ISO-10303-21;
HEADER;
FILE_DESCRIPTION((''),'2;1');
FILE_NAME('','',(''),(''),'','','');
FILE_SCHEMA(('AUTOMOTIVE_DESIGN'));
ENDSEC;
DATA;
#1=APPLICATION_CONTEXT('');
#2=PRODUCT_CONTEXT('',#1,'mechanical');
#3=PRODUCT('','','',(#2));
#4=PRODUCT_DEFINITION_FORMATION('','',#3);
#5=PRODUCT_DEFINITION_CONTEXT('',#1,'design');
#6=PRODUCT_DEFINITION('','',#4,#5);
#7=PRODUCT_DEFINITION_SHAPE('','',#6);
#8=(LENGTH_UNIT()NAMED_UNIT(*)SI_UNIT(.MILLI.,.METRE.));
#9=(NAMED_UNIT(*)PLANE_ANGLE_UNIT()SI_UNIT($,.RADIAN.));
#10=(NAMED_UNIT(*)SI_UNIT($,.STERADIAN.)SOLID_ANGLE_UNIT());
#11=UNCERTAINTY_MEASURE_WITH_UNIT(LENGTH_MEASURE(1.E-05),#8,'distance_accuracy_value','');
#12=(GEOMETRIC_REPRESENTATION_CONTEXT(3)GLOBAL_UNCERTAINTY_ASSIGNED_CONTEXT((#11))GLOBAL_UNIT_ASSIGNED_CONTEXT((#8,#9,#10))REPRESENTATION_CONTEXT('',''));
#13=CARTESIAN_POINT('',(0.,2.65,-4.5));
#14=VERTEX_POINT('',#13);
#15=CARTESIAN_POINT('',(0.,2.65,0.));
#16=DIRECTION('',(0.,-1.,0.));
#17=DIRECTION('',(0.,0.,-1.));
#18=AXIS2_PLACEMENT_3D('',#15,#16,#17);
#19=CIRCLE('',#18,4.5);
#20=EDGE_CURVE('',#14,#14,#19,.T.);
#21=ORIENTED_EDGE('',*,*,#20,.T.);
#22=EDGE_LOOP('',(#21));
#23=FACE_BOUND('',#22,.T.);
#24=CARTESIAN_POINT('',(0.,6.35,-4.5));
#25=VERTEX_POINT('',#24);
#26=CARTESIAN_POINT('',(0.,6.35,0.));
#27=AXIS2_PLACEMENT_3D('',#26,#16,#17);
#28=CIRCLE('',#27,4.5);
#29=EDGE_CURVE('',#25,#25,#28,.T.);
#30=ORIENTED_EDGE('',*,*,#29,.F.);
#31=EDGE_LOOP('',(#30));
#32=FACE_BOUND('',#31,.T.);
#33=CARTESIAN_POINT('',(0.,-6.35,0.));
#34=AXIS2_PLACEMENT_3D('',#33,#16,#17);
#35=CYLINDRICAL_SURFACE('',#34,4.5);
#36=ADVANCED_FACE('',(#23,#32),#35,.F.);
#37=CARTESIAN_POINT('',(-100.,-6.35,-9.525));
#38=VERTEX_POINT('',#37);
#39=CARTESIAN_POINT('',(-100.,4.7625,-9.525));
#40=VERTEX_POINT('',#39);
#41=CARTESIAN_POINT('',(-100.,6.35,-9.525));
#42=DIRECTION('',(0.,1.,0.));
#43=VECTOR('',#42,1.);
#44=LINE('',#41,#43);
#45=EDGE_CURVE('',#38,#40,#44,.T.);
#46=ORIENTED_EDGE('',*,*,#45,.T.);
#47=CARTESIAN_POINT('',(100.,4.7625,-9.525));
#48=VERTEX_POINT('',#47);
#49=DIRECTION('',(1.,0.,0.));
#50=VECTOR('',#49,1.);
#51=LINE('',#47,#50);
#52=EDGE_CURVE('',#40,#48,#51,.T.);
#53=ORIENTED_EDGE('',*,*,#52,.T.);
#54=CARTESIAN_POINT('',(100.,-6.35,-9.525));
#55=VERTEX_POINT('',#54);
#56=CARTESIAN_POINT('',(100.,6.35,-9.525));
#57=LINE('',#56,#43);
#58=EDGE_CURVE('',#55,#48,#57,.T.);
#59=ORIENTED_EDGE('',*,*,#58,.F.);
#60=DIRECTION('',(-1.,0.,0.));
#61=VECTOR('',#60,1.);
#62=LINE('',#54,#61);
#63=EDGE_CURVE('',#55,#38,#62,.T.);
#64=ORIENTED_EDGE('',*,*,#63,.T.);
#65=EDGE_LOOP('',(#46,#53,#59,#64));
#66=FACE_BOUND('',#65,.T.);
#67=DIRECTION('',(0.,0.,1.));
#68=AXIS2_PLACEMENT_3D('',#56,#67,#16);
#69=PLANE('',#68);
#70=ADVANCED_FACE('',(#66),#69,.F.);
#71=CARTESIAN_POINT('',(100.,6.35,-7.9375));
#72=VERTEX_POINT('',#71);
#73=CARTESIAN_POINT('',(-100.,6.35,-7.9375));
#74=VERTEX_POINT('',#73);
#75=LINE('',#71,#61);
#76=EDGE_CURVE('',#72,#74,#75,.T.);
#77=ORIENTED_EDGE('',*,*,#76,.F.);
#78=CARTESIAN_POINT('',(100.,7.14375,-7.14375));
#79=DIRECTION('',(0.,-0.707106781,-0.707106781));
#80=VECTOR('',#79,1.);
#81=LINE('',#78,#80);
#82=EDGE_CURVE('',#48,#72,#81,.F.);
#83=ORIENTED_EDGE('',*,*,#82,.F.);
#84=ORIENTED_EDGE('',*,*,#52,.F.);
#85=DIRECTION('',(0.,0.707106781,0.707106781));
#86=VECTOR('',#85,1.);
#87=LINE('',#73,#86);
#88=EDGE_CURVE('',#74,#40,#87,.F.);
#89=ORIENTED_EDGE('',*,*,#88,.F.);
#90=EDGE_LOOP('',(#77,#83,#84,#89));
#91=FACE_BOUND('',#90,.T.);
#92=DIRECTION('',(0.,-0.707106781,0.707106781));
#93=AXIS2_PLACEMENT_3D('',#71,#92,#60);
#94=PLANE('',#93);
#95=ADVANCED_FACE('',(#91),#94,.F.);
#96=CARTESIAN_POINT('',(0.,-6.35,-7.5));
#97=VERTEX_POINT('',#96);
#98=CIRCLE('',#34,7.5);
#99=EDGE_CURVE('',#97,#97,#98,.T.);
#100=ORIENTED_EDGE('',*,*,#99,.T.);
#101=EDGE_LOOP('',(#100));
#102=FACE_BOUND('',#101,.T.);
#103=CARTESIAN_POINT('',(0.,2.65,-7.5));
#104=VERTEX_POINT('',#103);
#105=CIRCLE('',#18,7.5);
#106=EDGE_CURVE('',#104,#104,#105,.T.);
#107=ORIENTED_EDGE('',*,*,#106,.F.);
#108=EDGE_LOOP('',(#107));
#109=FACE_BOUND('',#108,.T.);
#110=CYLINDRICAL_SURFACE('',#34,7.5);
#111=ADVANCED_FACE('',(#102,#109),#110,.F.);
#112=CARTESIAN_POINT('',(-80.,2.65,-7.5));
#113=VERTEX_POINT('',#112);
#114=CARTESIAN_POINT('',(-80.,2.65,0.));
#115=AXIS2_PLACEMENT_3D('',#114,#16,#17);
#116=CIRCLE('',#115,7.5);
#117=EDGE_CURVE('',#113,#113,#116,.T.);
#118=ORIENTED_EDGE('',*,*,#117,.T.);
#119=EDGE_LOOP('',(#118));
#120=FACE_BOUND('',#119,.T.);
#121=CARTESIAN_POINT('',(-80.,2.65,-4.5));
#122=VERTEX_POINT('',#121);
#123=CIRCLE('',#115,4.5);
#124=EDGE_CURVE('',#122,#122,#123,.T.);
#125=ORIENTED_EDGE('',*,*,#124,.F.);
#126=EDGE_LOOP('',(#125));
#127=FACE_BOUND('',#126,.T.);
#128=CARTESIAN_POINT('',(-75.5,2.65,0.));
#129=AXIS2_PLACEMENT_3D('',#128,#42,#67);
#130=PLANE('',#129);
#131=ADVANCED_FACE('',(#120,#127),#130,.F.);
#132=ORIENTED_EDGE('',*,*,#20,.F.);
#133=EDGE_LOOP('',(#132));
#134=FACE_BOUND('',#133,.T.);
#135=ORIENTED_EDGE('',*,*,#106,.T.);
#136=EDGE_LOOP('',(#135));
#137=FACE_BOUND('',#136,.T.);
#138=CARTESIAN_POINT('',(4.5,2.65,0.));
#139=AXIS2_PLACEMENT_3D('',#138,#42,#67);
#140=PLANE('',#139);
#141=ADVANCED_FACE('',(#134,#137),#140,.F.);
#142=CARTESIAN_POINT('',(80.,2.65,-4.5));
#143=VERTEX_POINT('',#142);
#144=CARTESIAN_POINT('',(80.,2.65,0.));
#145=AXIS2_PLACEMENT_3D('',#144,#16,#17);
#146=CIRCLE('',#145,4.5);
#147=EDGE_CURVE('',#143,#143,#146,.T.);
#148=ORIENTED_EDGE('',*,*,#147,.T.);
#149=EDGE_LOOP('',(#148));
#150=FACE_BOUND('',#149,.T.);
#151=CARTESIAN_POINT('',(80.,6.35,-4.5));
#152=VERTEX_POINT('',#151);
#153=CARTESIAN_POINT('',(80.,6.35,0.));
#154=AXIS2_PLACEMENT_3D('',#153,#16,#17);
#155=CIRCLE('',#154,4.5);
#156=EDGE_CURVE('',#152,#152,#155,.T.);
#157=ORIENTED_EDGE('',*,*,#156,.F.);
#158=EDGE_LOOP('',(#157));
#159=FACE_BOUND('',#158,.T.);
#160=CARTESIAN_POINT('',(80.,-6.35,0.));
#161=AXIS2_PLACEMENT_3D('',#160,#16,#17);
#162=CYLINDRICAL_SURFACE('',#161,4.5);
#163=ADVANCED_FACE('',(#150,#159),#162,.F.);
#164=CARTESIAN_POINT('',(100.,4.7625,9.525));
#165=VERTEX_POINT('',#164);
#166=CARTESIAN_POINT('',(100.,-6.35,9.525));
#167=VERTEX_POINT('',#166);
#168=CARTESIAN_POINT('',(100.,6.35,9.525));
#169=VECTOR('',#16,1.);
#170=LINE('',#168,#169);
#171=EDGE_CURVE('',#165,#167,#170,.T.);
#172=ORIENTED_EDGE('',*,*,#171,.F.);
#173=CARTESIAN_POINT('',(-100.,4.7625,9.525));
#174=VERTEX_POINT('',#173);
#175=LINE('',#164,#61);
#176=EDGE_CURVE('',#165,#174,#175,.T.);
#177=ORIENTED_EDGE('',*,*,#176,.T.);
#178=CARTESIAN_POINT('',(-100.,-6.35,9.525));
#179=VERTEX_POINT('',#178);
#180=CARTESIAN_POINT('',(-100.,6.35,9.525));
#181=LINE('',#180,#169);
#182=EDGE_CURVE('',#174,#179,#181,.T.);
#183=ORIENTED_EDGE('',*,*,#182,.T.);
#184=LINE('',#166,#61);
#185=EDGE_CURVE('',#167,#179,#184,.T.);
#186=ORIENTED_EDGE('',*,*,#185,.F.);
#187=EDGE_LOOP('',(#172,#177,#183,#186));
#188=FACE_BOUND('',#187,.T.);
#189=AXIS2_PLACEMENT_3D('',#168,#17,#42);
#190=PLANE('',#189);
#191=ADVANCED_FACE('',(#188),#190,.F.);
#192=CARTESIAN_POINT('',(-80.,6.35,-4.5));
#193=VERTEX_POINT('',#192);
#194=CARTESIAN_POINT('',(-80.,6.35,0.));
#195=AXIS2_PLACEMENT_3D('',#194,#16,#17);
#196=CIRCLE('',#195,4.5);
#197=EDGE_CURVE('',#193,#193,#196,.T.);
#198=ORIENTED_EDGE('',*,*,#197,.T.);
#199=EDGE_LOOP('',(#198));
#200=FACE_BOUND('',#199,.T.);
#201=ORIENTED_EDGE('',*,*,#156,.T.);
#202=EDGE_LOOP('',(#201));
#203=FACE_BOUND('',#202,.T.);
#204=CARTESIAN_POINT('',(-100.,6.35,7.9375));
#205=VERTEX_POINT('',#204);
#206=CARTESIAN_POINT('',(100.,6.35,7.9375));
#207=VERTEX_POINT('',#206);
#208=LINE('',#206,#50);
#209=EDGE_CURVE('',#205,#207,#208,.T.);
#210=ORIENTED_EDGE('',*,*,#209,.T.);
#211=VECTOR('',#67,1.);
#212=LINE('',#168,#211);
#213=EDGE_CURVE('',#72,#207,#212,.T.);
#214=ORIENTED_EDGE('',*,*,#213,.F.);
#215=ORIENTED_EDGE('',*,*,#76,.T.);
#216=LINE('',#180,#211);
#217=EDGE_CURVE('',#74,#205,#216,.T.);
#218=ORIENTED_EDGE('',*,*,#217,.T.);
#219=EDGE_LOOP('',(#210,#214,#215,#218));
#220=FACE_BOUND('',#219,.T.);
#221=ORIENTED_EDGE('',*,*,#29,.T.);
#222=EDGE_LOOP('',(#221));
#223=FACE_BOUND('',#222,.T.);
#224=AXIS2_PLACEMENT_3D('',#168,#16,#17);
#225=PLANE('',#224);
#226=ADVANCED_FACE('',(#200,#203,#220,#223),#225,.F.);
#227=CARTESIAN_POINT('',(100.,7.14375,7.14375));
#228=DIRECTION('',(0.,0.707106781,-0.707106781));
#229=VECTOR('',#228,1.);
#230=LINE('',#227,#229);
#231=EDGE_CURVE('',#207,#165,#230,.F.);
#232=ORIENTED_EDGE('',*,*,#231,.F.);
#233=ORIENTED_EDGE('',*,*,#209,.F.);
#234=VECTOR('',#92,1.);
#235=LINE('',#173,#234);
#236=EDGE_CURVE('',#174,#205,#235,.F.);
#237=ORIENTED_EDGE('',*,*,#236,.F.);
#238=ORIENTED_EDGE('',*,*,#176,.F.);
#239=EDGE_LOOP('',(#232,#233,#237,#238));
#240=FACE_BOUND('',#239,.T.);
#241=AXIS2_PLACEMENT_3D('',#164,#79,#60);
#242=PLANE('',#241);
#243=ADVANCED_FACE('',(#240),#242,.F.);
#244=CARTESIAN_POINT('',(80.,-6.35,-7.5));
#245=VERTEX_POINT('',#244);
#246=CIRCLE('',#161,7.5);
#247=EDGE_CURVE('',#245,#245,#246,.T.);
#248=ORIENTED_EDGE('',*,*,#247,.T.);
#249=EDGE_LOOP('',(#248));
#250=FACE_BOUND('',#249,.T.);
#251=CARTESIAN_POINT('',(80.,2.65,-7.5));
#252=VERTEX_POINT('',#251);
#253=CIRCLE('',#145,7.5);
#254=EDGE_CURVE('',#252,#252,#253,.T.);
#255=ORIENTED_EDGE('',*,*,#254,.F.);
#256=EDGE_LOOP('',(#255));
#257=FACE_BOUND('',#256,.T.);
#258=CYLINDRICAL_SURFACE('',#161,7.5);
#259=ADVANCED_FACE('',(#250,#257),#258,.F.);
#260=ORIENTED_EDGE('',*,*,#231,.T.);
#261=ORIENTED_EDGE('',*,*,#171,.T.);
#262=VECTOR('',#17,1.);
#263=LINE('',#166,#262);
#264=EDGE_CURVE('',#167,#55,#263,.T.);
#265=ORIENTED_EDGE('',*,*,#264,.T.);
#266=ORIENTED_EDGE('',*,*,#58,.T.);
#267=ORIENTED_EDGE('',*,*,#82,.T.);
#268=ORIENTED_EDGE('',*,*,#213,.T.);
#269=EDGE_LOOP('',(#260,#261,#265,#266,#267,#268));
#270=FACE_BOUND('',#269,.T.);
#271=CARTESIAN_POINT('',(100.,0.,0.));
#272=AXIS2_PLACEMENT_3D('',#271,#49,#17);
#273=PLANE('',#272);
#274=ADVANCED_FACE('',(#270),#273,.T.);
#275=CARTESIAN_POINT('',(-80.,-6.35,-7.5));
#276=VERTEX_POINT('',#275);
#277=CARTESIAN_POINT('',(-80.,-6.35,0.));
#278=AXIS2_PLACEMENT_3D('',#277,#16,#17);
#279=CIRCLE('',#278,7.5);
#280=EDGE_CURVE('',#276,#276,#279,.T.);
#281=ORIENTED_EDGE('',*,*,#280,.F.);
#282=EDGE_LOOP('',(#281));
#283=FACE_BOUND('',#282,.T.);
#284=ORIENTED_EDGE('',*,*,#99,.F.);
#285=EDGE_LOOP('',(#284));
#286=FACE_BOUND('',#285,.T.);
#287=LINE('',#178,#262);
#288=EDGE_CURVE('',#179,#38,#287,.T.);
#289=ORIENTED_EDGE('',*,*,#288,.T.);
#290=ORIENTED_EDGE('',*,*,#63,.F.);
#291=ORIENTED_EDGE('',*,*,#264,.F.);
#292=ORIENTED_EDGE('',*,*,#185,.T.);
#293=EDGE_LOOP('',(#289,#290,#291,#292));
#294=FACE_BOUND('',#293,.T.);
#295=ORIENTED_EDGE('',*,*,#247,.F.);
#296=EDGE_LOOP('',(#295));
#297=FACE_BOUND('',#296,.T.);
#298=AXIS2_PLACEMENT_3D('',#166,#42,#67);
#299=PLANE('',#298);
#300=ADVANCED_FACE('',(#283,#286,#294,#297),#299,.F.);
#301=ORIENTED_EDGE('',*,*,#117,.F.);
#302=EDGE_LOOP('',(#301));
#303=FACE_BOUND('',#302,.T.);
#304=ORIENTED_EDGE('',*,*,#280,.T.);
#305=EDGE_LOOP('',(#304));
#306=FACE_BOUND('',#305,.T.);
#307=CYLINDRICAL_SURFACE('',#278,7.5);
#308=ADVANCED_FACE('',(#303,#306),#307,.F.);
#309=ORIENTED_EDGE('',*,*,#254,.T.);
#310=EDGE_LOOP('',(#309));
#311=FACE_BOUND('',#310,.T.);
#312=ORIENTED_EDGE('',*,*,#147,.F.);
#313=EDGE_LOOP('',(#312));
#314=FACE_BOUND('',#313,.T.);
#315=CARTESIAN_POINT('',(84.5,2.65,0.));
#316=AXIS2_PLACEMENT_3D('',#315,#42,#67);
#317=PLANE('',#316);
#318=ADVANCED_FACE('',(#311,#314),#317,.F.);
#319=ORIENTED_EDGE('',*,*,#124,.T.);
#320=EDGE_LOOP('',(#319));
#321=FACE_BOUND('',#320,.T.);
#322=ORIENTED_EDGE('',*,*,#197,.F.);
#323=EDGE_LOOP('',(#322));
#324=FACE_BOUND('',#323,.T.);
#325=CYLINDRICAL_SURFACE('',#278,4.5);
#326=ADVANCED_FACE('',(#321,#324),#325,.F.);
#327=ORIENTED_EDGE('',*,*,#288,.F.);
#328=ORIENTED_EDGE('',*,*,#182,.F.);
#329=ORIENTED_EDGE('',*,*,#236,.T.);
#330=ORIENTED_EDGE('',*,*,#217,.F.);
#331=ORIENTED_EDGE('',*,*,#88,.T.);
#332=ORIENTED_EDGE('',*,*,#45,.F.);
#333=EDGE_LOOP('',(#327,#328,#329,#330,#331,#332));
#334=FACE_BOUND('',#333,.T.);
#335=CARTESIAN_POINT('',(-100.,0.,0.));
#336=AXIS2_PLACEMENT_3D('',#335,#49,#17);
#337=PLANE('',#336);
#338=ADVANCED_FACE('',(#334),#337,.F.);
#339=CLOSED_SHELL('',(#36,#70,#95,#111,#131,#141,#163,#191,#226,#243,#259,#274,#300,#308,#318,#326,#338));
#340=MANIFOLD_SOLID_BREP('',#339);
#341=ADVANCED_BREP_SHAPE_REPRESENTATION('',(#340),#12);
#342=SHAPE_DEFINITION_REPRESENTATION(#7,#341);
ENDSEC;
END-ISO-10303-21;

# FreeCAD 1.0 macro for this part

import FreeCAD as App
import Part
import Sketcher
Q = App.Units.Quantity


def edges_at(feature, points):
    """Names of the edges that pass closest to the given points."""
    edges = feature.Shape.Edges
    near = lambda p: min(range(len(edges)), key=lambda i: edges[i].distToShape(Part.Vertex(*p))[0])
    return sorted({f"Edge{near(p) + 1}" for p in points})

doc = App.newDocument("Part")
body = doc.addObject("PartDesign::Body", "Body")

# Sketch on YZ plane
sketch1 = doc.addObject("Sketcher::SketchObject", "Sketch")
body.addObject(sketch1)
sketch1.AttachmentSupport = (doc.YZ_Plane, [""])
sketch1.MapMode = "FlatFace"
sketch1.addGeometry([
    Part.LineSegment(App.Vector(6, 10, 0), App.Vector(-6, 10, 0)),
    Part.LineSegment(App.Vector(-6, 10, 0), App.Vector(-6, -10, 0)),
    Part.LineSegment(App.Vector(-6, -10, 0), App.Vector(6, -10, 0)),
    Part.LineSegment(App.Vector(6, -10, 0), App.Vector(6, 10, 0)),
], False)
sketch1.addConstraint([
    Sketcher.Constraint("Coincident", 0, 2, 1, 1),
    Sketcher.Constraint("Coincident", 1, 2, 2, 1),
    Sketcher.Constraint("Coincident", 2, 2, 3, 1),
    Sketcher.Constraint("Coincident", 3, 2, 0, 1),
    Sketcher.Constraint("Horizontal", 0),
    Sketcher.Constraint("Vertical", 1),
    Sketcher.Constraint("Horizontal", 2),
    Sketcher.Constraint("Vertical", 3),
    Sketcher.Constraint("Symmetric", 0, 2, 2, 2, -1, 1),
    Sketcher.Constraint("DistanceX", 0, 2, 0, 1, Q("0.5 in")),
    Sketcher.Constraint("DistanceY", 1, 2, 1, 1, Q("0.75 in")),
])
pad1 = doc.addObject("PartDesign::Pad", "Pad")
body.addObject(pad1)
pad1.Profile = sketch1
pad1.Length = 200
pad1.Midplane = True

# Sketch on XZ plane
sketch2 = doc.addObject("Sketcher::SketchObject", "Sketch001")
body.addObject(sketch2)
sketch2.AttachmentSupport = (doc.XZ_Plane, [""])
sketch2.MapMode = "FlatFace"
sketch2.AttachmentOffset = App.Placement(App.Vector(0, 0, 0.25 * 25.4), App.Rotation())
sketch2.addGeometry([
    Part.Circle(App.Vector(-80, 0, 0), App.Vector(0, 0, 1), 4.5),
    Part.Circle(App.Vector(0, 0, 0), App.Vector(0, 0, 1), 4.5),
    Part.Circle(App.Vector(80, 0, 0), App.Vector(0, 0, 1), 4.5),
], False)
sketch2.addConstraint([
    Sketcher.Constraint("Coincident", 1, 3, -1, 1),
    Sketcher.Constraint("Equal", 0, 1),
    Sketcher.Constraint("Equal", 1, 2),
    Sketcher.Constraint("Symmetric", 0, 3, 2, 3, -1, 1),
    Sketcher.Constraint("PointOnObject", 0, 3, -1),
    Sketcher.Constraint("Diameter", 0, Q("9 mm")),
    Sketcher.Constraint("DistanceX", 0, 3, -1, 1, Q("80 mm")),
])
doc.recompute()
hole = doc.addObject("PartDesign::Hole", "Hole")
body.addObject(hole)
hole.Profile = sketch2
hole.ThreadType = "None"
hole.Diameter = 9
hole.DepthType = "ThroughAll"
hole.HoleCutType = "Counterbore"
hole.HoleCutDiameter = 15
hole.HoleCutDepth = 9
doc.recompute()

chamfer = doc.addObject("PartDesign::Chamfer", "Chamfer")
body.addObject(chamfer)
chamfer.Base = (hole, edges_at(hole, [(0, 6.35, 9.525), (0, 6.35, -9.525)]))
chamfer.Size = Q("0.0625 in")

doc.recompute()
